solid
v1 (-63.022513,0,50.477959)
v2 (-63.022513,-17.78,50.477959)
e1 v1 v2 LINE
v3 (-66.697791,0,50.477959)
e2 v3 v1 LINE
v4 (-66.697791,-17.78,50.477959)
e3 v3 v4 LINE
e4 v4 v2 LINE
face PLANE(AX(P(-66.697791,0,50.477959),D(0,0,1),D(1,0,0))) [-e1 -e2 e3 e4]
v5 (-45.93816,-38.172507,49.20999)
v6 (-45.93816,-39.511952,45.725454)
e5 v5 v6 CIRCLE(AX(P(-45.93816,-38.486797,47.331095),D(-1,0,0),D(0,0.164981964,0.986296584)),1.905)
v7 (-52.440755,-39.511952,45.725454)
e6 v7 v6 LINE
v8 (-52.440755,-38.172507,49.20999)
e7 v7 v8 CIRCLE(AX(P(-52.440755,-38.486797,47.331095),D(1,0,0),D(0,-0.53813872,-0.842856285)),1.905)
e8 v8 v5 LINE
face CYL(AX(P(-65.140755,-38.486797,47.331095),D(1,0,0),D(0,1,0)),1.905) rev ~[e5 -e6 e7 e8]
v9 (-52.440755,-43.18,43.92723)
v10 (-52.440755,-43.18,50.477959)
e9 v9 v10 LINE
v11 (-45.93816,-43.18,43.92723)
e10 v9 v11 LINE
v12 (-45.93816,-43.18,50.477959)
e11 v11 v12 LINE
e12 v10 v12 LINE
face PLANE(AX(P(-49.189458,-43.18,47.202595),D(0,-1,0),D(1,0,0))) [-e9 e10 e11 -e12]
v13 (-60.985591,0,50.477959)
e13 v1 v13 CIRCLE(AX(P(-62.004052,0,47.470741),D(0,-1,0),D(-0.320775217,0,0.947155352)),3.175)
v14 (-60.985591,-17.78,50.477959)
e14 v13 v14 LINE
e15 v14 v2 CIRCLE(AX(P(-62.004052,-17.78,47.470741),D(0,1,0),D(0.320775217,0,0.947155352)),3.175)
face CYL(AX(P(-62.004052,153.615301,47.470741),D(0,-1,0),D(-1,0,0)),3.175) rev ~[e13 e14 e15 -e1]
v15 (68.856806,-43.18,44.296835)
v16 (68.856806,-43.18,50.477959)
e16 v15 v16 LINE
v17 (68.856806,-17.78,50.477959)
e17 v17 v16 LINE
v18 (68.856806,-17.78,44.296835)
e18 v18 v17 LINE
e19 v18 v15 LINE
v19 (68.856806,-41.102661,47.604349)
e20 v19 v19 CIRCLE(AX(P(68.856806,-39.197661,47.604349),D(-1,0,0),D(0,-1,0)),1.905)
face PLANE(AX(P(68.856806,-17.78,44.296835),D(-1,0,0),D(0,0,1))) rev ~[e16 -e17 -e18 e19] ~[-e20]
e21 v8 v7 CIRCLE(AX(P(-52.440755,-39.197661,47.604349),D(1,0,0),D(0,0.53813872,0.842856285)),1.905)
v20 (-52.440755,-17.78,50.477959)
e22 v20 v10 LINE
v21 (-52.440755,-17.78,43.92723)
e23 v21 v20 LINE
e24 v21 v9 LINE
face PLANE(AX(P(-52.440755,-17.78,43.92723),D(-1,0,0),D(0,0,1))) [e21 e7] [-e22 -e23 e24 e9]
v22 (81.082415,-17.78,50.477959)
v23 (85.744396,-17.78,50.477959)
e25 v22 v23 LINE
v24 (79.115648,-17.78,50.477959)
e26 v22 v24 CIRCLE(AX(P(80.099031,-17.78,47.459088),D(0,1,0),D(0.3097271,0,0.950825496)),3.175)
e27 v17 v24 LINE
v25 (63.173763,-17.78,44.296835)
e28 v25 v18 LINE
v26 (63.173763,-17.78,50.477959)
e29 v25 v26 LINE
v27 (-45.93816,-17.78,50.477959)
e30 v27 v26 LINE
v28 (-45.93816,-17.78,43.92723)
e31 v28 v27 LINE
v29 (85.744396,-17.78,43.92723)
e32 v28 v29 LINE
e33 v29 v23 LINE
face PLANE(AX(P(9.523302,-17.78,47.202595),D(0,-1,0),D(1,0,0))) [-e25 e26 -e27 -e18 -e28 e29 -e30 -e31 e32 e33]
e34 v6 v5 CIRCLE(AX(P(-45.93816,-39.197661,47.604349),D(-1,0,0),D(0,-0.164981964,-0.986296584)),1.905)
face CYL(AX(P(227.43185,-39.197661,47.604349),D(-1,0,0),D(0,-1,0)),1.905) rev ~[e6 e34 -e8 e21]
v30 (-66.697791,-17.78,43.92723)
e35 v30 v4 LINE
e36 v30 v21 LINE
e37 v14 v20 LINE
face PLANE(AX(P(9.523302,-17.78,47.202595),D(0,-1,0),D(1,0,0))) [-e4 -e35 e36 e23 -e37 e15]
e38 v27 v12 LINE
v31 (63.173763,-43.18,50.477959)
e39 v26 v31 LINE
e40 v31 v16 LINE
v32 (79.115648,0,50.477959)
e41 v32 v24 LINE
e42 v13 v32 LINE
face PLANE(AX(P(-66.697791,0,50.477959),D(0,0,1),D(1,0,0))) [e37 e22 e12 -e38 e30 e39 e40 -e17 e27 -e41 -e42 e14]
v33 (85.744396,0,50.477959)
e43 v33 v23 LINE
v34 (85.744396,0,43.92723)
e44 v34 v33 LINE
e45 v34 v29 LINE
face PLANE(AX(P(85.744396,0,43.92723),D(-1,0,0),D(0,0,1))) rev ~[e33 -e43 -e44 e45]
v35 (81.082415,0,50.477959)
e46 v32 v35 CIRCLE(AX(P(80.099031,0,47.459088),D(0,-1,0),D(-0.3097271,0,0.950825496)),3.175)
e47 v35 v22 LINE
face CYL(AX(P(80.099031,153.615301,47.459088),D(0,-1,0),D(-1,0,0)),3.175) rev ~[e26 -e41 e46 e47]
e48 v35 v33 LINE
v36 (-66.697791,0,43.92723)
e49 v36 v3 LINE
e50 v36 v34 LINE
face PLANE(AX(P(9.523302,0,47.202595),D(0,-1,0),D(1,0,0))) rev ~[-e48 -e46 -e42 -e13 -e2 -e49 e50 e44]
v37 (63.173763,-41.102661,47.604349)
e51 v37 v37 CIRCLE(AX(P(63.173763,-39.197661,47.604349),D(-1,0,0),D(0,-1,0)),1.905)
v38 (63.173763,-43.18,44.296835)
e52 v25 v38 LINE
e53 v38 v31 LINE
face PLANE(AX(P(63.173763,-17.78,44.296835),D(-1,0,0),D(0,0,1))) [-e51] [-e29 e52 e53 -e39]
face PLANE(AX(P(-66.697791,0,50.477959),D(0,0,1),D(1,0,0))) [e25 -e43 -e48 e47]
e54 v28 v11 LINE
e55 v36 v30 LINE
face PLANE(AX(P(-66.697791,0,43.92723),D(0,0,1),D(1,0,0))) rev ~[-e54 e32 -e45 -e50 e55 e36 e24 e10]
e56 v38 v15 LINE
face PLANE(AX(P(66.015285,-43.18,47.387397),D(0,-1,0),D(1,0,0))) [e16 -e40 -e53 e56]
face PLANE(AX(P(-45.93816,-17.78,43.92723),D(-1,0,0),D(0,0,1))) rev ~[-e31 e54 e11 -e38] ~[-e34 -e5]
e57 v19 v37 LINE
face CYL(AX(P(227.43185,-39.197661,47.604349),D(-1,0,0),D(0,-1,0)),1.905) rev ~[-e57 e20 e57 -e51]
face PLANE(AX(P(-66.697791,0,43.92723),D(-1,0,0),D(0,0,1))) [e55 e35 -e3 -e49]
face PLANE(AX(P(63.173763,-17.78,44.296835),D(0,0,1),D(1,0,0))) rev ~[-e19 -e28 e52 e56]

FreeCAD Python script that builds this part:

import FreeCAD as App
import Part
import Sketcher
from FreeCAD import Vector
Q = App.Units.Quantity


def add_polygon(sketch, points):
    """Adds a closed chain of lines whose ends are joined by coincident constraints."""
    first, n = sketch.GeometryCount, len(points)
    for a, b in zip(points, points[1:] + points[:1]):
        sketch.addGeometry(Part.LineSegment(App.Vector(*a, 0), App.Vector(*b, 0)), False)
    for i in range(n):
        sketch.addConstraint(Sketcher.Constraint("Coincident", first + i, 2, first + (i + 1) % n, 1))

doc = App.newDocument("Part")
body = doc.addObject("PartDesign::Body", "Body")

sketch1 = doc.addObject("Sketcher::SketchObject", "Sketch")
body.addObject(sketch1)
sketch1.AttachmentSupport = (doc.XZ_Plane, [""])
sketch1.MapMode = "FlatFace"
add_polygon(sketch1, [(-66.697791, 50.477959), (-66.697791, 43.92723), (85.744396, 43.92723), (85.744396, 50.477959)])
sketch1.addConstraint(Sketcher.Constraint("Vertical", 0))
sketch1.addConstraint(Sketcher.Constraint("Horizontal", 1))
sketch1.addConstraint(Sketcher.Constraint("Vertical", 2))
sketch1.addConstraint(Sketcher.Constraint("Horizontal", 3))
sketch1.addConstraint(Sketcher.Constraint("DistanceY", 0, 2, 0, 1, Q("6.550729 mm")))
sketch1.addConstraint(Sketcher.Constraint("DistanceX", 1, 1, 1, 2, Q("152.442187 mm")))
sketch1.addConstraint(Sketcher.Constraint("DistanceX", 0, 2, -1, 1, Q("66.697791 mm")))
sketch1.addConstraint(Sketcher.Constraint("DistanceY", -1, 1, 0, 2, Q("43.92723 mm")))
pad1 = doc.addObject("PartDesign::Pad", "Pad")
body.addObject(pad1)
pad1.Profile = sketch1
pad1.Length = Q("0.7 in")

sketch2 = doc.addObject("Sketcher::SketchObject", "Sketch001")
body.addObject(sketch2)
sketch2.AttachmentSupport = (doc.XZ_Plane, [""])
sketch2.MapMode = "FlatFace"
sketch2.addGeometry(Part.Circle(Vector(-62.004052, 47.470741, 0), Vector(0, 0, 1), 3.175), False)
sketch2.addConstraint(Sketcher.Constraint("Diameter", 0, Q("0.25 in")))
sketch2.addConstraint(Sketcher.Constraint("DistanceY", -1, 1, 0, 3, Q("47.470741 mm")))
sketch2.addConstraint(Sketcher.Constraint("DistanceX", 0, 3, -1, 1, Q("62.004052 mm")))
doc.recompute()
hole = doc.addObject("PartDesign::Hole", "Hole")
body.addObject(hole)
hole.Profile = sketch2
hole.ThreadType = "None"
hole.Diameter = Q("0.25 in")
hole.DepthType = "ThroughAll"
hole.Reversed = True

sketch3 = doc.addObject("Sketcher::SketchObject", "Sketch002")
body.addObject(sketch3)
sketch3.AttachmentSupport = (doc.XZ_Plane, [""])
sketch3.MapMode = "FlatFace"
sketch3.addGeometry(Part.Circle(Vector(80.099031, 47.459088, 0), Vector(0, 0, 1), 3.175), False)
sketch3.addConstraint(Sketcher.Constraint("Diameter", 0, Q("0.25 in")))
sketch3.addConstraint(Sketcher.Constraint("DistanceX", -1, 1, 0, 3, Q("80.099031 mm")))
sketch3.addConstraint(Sketcher.Constraint("DistanceY", -1, 1, 0, 3, Q("47.459088 mm")))
doc.recompute()
hole2 = doc.addObject("PartDesign::Hole", "Hole001")
body.addObject(hole2)
hole2.Profile = sketch3
hole2.ThreadType = "None"
hole2.Diameter = Q("0.25 in")
hole2.DepthType = "ThroughAll"
hole2.Reversed = True

sketch4 = doc.addObject("Sketcher::SketchObject", "Sketch003")
body.addObject(sketch4)
sketch4.AttachmentSupport = (doc.XZ_Plane, [""])
sketch4.MapMode = "FlatFace"
sketch4.AttachmentOffset = App.Placement(Vector(0, 0, 0.7 * 25.4), App.Rotation())
add_polygon(sketch4, [(63.173763, 50.477959), (63.173763, 44.296835), (68.856806, 44.296835), (68.856806, 50.477959)])
sketch4.addConstraint(Sketcher.Constraint("Vertical", 0))
sketch4.addConstraint(Sketcher.Constraint("Horizontal", 1))
sketch4.addConstraint(Sketcher.Constraint("Vertical", 2))
sketch4.addConstraint(Sketcher.Constraint("Horizontal", 3))
sketch4.addConstraint(Sketcher.Constraint("DistanceX", 1, 1, 1, 2, Q("5.683042 mm")))
sketch4.addConstraint(Sketcher.Constraint("DistanceY", 0, 2, 0, 1, Q("6.181125 mm")))
sketch4.addConstraint(Sketcher.Constraint("DistanceY", -1, 1, 2, 2, Q("50.477959 mm")))
sketch4.addConstraint(Sketcher.Constraint("DistanceX", -1, 1, 0, 2, Q("63.173763 mm")))
pad2 = doc.addObject("PartDesign::Pad", "Pad001")
body.addObject(pad2)
pad2.Profile = sketch4
pad2.Length = Q("1 in")

sketch5 = doc.addObject("Sketcher::SketchObject", "Sketch004")
body.addObject(sketch5)
sketch5.AttachmentSupport = (doc.XZ_Plane, [""])
sketch5.MapMode = "FlatFace"
sketch5.AttachmentOffset = App.Placement(Vector(0, 0, 0.7 * 25.4), App.Rotation())
add_polygon(sketch5, [(-52.440755, 50.477959), (-52.440755, 43.92723), (-45.93816, 43.92723), (-45.93816, 50.477959)])
sketch5.addConstraint(Sketcher.Constraint("Vertical", 0))
sketch5.addConstraint(Sketcher.Constraint("Horizontal", 1))
sketch5.addConstraint(Sketcher.Constraint("Vertical", 2))
sketch5.addConstraint(Sketcher.Constraint("Horizontal", 3))
sketch5.addConstraint(Sketcher.Constraint("DistanceY", 0, 2, 0, 1, Q("6.550729 mm")))
sketch5.addConstraint(Sketcher.Constraint("DistanceX", 1, 1, 1, 2, Q("6.502595 mm")))
sketch5.addConstraint(Sketcher.Constraint("DistanceY", -1, 1, 0, 2, Q("43.92723 mm")))
sketch5.addConstraint(Sketcher.Constraint("DistanceX", 1, 2, -1, 1, Q("45.93816 mm")))
pad3 = doc.addObject("PartDesign::Pad", "Pad002")
body.addObject(pad3)
pad3.Profile = sketch5
pad3.Length = Q("1 in")

sketch6 = doc.addObject("Sketcher::SketchObject", "Sketch005")
body.addObject(sketch6)
sketch6.AttachmentSupport = (doc.YZ_Plane, [""])
sketch6.MapMode = "FlatFace"
sketch6.AttachmentOffset = App.Placement(Vector(0, 0, -52.440755), App.Rotation())
sketch6.addGeometry(Part.Circle(Vector(-38.486797, 47.331095, 0), Vector(0, 0, 1), 1.905), False)
sketch6.addConstraint(Sketcher.Constraint("Diameter", 0, Q("0.15 in")))
sketch6.addConstraint(Sketcher.Constraint("DistanceX", 0, 3, -1, 1, Q("38.486797 mm")))
sketch6.addConstraint(Sketcher.Constraint("DistanceY", -1, 1, 0, 3, Q("47.331095 mm")))
doc.recompute()
hole3 = doc.addObject("PartDesign::Hole", "Hole002")
body.addObject(hole3)
hole3.Profile = sketch6
hole3.ThreadType = "None"
hole3.Diameter = Q("0.15 in")
hole3.DepthType = "Dimension"
hole3.Depth = Q("0.5 in")
hole3.DrillPoint = "Angled"
hole3.DrillPointAngle = 118
hole3.Reversed = True

sketch7 = doc.addObject("Sketcher::SketchObject", "Sketch006")
body.addObject(sketch7)
sketch7.AttachmentSupport = (doc.YZ_Plane, [""])
sketch7.MapMode = "FlatFace"
sketch7.AttachmentOffset = App.Placement(Vector(0, 0, 68.856806), App.Rotation())
sketch7.addGeometry(Part.Circle(Vector(-39.197661, 47.604349, 0), Vector(0, 0, 1), 1.905), False)
sketch7.addConstraint(Sketcher.Constraint("Diameter", 0, Q("0.15 in")))
sketch7.addConstraint(Sketcher.Constraint("DistanceX", 0, 3, -1, 1, Q("39.197661 mm")))
sketch7.addConstraint(Sketcher.Constraint("DistanceY", -1, 1, 0, 3, Q("47.604349 mm")))
doc.recompute()
hole4 = doc.addObject("PartDesign::Hole", "Hole003")
body.addObject(hole4)
hole4.Profile = sketch7
hole4.ThreadType = "None"
hole4.Diameter = Q("0.15 in")
hole4.DepthType = "ThroughAll"

doc.recompute()
